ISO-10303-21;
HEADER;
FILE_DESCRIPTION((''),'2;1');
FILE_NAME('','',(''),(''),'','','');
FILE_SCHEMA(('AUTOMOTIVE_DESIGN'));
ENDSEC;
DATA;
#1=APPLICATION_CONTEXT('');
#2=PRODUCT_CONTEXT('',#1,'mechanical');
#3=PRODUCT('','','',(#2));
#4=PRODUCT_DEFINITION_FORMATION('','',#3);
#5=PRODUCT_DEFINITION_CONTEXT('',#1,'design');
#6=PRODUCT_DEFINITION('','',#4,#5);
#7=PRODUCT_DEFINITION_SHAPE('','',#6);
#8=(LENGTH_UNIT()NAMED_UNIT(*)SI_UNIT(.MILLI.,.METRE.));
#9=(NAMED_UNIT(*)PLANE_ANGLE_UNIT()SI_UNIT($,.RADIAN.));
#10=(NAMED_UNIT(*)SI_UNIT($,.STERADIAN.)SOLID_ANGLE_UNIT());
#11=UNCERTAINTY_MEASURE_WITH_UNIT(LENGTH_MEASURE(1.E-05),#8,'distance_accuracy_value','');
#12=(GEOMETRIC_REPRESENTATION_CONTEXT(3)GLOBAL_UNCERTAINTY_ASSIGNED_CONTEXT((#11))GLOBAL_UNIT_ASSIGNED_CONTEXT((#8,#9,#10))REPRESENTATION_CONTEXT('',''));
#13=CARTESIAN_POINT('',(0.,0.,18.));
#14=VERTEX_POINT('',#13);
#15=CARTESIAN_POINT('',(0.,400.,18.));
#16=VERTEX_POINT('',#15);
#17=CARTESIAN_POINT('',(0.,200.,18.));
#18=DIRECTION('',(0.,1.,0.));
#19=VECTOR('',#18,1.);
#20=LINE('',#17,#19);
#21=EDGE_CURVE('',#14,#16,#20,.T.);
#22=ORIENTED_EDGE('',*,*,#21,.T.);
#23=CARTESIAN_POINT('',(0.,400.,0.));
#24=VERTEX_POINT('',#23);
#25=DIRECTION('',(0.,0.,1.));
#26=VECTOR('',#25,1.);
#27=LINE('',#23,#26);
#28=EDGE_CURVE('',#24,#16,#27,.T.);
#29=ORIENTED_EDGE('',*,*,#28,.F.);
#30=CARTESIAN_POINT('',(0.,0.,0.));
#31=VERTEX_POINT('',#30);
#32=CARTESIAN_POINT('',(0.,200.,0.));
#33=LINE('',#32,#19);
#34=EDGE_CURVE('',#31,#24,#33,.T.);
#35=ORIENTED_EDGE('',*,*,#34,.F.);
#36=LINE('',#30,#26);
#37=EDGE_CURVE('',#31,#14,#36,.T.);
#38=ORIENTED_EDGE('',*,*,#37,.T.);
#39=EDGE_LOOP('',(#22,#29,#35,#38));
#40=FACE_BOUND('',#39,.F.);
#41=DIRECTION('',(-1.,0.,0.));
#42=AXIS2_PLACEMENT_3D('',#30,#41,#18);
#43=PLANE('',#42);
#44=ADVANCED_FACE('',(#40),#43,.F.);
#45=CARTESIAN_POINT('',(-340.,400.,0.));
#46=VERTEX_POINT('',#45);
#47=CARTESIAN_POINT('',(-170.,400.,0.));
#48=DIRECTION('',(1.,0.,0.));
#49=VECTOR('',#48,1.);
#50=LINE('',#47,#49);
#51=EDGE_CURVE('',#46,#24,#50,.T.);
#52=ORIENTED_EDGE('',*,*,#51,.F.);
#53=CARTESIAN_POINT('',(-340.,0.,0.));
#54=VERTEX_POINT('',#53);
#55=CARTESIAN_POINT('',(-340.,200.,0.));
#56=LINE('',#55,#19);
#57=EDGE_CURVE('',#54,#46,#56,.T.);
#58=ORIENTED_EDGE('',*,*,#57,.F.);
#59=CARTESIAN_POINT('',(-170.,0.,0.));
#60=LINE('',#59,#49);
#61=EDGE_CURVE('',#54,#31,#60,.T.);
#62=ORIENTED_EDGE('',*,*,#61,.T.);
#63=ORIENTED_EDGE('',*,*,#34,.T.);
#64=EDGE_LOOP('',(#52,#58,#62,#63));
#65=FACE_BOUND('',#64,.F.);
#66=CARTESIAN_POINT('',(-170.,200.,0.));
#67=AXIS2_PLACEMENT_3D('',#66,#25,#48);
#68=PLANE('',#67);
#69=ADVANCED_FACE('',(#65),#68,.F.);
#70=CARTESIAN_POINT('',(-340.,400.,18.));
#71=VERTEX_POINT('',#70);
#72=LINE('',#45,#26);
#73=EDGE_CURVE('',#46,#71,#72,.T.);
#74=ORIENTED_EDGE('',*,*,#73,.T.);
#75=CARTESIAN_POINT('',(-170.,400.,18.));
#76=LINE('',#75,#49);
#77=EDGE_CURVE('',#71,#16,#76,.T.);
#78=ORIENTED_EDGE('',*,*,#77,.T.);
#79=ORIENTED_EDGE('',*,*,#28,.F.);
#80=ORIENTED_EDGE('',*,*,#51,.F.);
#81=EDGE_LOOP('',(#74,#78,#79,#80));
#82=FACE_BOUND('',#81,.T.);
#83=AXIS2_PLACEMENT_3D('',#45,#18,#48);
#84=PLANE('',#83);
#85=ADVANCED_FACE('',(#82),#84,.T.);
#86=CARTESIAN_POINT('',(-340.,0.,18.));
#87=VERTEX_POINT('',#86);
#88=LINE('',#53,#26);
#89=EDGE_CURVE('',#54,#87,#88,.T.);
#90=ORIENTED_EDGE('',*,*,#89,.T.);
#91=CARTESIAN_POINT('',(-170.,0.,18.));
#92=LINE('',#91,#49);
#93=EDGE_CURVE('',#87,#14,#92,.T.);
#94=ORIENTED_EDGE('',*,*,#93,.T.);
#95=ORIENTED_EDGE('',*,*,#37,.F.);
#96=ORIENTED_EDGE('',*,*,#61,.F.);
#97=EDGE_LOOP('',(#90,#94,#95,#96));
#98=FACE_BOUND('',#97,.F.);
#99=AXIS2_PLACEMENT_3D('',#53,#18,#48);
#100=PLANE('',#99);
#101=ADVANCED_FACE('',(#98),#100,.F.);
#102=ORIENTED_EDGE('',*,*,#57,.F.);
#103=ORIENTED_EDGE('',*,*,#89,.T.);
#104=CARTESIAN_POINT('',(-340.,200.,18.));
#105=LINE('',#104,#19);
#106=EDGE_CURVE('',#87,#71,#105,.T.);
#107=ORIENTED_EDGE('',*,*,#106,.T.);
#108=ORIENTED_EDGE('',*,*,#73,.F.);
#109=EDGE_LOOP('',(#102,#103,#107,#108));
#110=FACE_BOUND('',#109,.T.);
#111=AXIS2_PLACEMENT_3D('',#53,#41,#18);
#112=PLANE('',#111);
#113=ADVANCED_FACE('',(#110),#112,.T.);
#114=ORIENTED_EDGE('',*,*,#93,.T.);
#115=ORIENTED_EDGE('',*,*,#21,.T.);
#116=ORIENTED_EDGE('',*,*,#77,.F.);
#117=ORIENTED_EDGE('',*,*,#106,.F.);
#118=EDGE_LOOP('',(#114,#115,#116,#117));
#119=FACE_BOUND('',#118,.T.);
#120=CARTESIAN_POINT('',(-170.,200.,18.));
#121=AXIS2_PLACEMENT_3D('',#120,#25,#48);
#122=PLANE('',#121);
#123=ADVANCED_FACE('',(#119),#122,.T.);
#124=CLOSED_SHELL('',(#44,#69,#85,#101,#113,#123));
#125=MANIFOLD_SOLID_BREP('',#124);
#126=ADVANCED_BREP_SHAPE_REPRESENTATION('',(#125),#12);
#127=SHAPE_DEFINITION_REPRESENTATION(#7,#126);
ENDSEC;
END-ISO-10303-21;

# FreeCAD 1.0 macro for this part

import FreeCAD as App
import Part
import Sketcher

doc = App.newDocument("Part")
body = doc.addObject("PartDesign::Body", "Body")

# Sketch on XY plane
sketch1 = body.newObject("Sketcher::SketchObject", "Sketch")
sketch1.AttachmentSupport = (doc.getObject("XY_Plane"), [""])
sketch1.MapMode = "FlatFace"
sketch1.addGeometry([
    Part.LineSegment(App.Vector(-340, 400, 0), App.Vector(-340, 0, 0)),
    Part.LineSegment(App.Vector(-340, 0, 0), App.Vector(0, 0, 0)),
    Part.LineSegment(App.Vector(0, 0, 0), App.Vector(0, 400, 0)),
    Part.LineSegment(App.Vector(0, 400, 0), App.Vector(-340, 400, 0)),
], False)
sketch1.addConstraint([
    Sketcher.Constraint("Coincident", 0, 2, 1, 1),
    Sketcher.Constraint("Coincident", 1, 2, 2, 1),
    Sketcher.Constraint("Coincident", 2, 2, 3, 1),
    Sketcher.Constraint("Coincident", 3, 2, 0, 1),
    Sketcher.Constraint("Vertical", 0),
    Sketcher.Constraint("Horizontal", 1),
    Sketcher.Constraint("Vertical", 2),
    Sketcher.Constraint("Horizontal", 3),
    Sketcher.Constraint("Coincident", 1, 2, -1, 1),
    Sketcher.Constraint("DistanceX", 1, 1, 1, 2, 340.0),
    Sketcher.Constraint("DistanceY", 0, 2, 0, 1, 400.0),
])
pad1 = body.newObject("PartDesign::Pad", "Pad")
pad1.Profile = sketch1
pad1.Length = 18

doc.recompute()
